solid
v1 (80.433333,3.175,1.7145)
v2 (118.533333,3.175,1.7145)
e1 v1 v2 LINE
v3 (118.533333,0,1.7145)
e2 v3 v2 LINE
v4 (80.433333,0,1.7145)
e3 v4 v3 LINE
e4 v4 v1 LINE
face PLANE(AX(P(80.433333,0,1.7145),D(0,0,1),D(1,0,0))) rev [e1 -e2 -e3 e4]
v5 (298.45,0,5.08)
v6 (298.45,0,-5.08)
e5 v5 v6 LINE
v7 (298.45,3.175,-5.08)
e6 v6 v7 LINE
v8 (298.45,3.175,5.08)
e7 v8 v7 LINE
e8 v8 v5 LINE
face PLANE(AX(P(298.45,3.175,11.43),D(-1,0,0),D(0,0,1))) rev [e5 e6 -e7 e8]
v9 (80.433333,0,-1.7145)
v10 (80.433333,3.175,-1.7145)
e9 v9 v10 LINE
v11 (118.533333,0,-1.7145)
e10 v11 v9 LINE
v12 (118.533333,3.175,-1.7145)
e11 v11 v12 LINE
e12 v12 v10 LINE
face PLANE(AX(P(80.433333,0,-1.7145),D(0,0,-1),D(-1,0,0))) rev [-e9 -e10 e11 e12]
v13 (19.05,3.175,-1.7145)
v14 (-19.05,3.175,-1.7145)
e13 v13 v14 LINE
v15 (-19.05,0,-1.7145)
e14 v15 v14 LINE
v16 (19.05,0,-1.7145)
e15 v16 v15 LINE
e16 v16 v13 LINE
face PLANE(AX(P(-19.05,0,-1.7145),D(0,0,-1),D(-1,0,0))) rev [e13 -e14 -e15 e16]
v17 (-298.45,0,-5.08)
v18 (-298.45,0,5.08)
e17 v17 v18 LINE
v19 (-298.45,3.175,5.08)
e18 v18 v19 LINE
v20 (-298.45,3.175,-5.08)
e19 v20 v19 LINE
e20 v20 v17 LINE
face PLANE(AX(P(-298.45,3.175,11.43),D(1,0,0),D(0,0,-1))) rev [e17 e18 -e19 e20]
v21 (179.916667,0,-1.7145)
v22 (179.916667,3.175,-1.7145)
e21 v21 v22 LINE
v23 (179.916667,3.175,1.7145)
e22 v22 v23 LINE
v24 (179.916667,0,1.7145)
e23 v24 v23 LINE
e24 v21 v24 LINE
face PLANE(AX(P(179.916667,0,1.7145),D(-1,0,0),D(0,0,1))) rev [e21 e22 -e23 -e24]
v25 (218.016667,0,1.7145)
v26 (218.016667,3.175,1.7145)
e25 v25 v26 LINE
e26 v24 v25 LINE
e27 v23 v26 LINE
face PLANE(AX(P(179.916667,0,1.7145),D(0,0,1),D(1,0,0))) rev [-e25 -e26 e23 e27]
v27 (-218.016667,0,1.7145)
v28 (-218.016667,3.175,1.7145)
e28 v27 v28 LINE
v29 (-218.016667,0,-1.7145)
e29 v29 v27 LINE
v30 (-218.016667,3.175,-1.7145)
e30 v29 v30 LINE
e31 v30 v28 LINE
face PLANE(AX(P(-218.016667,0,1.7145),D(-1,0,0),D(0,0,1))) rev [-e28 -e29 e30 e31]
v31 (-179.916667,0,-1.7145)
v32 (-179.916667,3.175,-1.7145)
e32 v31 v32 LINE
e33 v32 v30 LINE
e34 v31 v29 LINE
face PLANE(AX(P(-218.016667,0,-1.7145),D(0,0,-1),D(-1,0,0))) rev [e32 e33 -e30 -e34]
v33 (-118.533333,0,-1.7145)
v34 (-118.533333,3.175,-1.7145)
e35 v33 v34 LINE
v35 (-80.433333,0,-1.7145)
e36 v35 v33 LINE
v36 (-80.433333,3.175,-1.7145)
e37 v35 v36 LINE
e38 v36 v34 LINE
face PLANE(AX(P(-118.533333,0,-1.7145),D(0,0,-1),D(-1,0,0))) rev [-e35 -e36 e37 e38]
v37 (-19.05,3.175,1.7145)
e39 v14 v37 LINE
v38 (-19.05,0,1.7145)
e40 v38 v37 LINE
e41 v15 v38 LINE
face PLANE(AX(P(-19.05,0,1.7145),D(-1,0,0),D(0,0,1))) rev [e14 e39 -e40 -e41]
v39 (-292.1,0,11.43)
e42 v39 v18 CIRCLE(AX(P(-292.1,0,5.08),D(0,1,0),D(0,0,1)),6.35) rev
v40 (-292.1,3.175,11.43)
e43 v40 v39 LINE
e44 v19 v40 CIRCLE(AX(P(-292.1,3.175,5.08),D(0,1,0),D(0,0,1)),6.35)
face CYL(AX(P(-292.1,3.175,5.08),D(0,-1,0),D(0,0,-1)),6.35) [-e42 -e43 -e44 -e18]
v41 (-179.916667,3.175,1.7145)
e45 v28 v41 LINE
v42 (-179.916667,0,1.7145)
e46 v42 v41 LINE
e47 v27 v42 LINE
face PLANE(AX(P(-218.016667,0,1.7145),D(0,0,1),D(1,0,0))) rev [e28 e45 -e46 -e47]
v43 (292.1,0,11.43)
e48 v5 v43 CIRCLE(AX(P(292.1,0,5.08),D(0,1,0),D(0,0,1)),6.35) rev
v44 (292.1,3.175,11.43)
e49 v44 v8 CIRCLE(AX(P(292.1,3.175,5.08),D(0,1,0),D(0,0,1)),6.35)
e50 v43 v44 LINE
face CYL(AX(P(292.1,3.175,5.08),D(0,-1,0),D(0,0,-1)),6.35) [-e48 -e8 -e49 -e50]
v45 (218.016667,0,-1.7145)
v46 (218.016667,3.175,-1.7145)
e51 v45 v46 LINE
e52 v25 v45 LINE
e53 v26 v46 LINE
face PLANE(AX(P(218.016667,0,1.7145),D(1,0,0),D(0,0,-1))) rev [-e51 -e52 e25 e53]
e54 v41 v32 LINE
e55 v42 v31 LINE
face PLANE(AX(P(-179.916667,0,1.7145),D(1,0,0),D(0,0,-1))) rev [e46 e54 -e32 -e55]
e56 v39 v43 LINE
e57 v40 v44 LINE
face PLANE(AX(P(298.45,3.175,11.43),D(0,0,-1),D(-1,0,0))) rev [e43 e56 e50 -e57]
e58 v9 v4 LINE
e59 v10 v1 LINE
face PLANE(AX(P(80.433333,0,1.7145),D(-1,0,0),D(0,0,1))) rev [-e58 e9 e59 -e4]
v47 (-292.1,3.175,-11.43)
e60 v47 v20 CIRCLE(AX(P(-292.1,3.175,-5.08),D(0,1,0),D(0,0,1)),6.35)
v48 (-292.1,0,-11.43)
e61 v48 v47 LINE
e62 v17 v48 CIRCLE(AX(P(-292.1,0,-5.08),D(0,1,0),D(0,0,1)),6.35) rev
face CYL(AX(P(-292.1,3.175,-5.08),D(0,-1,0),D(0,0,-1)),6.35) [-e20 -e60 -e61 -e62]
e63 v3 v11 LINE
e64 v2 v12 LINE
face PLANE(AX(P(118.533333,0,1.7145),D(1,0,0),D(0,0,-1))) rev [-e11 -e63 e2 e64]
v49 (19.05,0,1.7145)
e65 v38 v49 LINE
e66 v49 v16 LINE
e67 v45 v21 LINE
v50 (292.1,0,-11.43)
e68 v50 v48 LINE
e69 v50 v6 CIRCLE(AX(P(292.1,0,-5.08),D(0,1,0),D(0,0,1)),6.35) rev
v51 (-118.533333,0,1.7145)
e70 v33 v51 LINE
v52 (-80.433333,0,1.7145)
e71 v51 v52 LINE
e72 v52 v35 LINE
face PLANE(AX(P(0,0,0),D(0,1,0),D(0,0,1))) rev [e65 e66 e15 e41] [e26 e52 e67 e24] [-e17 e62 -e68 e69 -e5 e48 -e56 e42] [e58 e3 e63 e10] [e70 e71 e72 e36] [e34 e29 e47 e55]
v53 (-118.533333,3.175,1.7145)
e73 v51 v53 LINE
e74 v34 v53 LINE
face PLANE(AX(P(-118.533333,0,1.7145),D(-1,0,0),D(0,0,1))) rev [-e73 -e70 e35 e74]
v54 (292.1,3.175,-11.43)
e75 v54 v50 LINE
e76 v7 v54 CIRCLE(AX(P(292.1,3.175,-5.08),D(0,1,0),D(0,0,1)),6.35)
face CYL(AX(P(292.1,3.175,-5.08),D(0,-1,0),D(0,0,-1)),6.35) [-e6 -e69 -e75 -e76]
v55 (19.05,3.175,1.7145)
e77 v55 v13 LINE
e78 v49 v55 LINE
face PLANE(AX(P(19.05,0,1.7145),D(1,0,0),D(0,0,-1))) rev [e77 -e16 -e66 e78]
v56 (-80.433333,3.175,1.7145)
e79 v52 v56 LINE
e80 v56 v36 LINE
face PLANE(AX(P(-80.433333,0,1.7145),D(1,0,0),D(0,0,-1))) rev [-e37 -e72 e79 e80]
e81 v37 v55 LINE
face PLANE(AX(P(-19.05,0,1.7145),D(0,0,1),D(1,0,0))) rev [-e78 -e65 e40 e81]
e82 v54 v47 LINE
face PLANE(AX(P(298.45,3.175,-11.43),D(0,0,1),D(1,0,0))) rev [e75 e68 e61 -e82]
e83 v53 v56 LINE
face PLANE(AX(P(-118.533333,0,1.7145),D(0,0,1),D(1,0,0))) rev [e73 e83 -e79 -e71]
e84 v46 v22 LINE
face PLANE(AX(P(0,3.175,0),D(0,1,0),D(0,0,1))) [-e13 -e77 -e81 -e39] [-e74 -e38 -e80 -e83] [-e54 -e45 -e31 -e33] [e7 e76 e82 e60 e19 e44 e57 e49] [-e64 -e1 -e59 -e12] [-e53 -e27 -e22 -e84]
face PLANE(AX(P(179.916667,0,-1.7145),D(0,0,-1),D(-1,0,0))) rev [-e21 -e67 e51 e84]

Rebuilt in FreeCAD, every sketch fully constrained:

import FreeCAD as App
import Part
import Sketcher
from FreeCAD import Vector
Q = App.Units.Quantity


def edges_at(feature, points):
    """Names of the edges that pass closest to the given points."""
    edges = feature.Shape.Edges
    near = lambda p: min(range(len(edges)), key=lambda i: edges[i].distToShape(Part.Vertex(*p))[0])
    return sorted({f"Edge{near(p) + 1}" for p in points})

doc = App.newDocument("Part")
body = doc.addObject("PartDesign::Body", "Body")

# Sketch on XZ plane
sketch1 = body.newObject("Sketcher::SketchObject", "Sketch")
sketch1.AttachmentSupport = (doc.getObject("XZ_Plane"), [""])
sketch1.MapMode = "FlatFace"
sketch1.addGeometry([
    Part.LineSegment(Vector(-298, -11, 0), Vector(-298, 11, 0)),
    Part.LineSegment(Vector(-298, 11, 0), Vector(298, 11, 0)),
    Part.LineSegment(Vector(298, 11, 0), Vector(298, -11, 0)),
    Part.LineSegment(Vector(298, -11, 0), Vector(-298, -11, 0)),
], False)
sketch1.addConstraint([
    Sketcher.Constraint("Coincident", 0, 2, 1, 1),
    Sketcher.Constraint("Coincident", 1, 2, 2, 1),
    Sketcher.Constraint("Coincident", 2, 2, 3, 1),
    Sketcher.Constraint("Coincident", 3, 2, 0, 1),
    Sketcher.Constraint("Vertical", 0),
    Sketcher.Constraint("Horizontal", 1),
    Sketcher.Constraint("Vertical", 2),
    Sketcher.Constraint("Horizontal", 3),
    Sketcher.Constraint("Symmetric", 0, 2, 2, 2, -1, 1),
    Sketcher.Constraint("DistanceX", 1, 1, 1, 2, Q("23.5 in")),
    Sketcher.Constraint("DistanceY", 0, 1, 0, 2, Q("0.9 in")),
])
pad1 = body.newObject("PartDesign::Pad", "Pad")
pad1.Profile = sketch1
pad1.Length = Q("0.125 in")
pad1.Reversed = True

# Sketch on XZ plane
sketch2 = body.newObject("Sketcher::SketchObject", "Sketch001")
sketch2.AttachmentSupport = (doc.getObject("XZ_Plane"), [""])
sketch2.MapMode = "FlatFace"
sketch2.AttachmentOffset = App.Placement(Vector(0, 0, -0.125 * 25.4), App.Rotation())
sketch2.addGeometry([
    Part.LineSegment(Vector(-218, -1.7, 0), Vector(-218, 1.7, 0)),  # 0
    Part.LineSegment(Vector(-218, 1.7, 0), Vector(-179.9, 1.7, 0)),  # 1
    Part.LineSegment(Vector(-179.9, 1.7, 0), Vector(-179.9, -1.7, 0)),  # 2
    Part.LineSegment(Vector(-179.9, -1.7, 0), Vector(-218, -1.7, 0)),  # 3
    Part.LineSegment(Vector(-118.5, -1.7, 0), Vector(-118.5, 1.7, 0)),  # 4
    Part.LineSegment(Vector(-118.5, 1.7, 0), Vector(-80.4, 1.7, 0)),  # 5
    Part.LineSegment(Vector(-80.4, 1.7, 0), Vector(-80.4, -1.7, 0)),  # 6
    Part.LineSegment(Vector(-80.4, -1.7, 0), Vector(-118.5, -1.7, 0)),  # 7
    Part.LineSegment(Vector(-19.1, -1.7, 0), Vector(-19.1, 1.7, 0)),  # 8
    Part.LineSegment(Vector(-19.1, 1.7, 0), Vector(19.1, 1.7, 0)),  # 9
    Part.LineSegment(Vector(19.1, 1.7, 0), Vector(19.1, -1.7, 0)),  # 10
    Part.LineSegment(Vector(19.1, -1.7, 0), Vector(-19.1, -1.7, 0)),  # 11
    Part.LineSegment(Vector(80.4, -1.7, 0), Vector(80.4, 1.7, 0)),  # 12
    Part.LineSegment(Vector(80.4, 1.7, 0), Vector(118.5, 1.7, 0)),  # 13
    Part.LineSegment(Vector(118.5, 1.7, 0), Vector(118.5, -1.7, 0)),  # 14
    Part.LineSegment(Vector(118.5, -1.7, 0), Vector(80.4, -1.7, 0)),  # 15
    Part.LineSegment(Vector(179.9, -1.7, 0), Vector(179.9, 1.7, 0)),  # 16
    Part.LineSegment(Vector(179.9, 1.7, 0), Vector(218, 1.7, 0)),  # 17
    Part.LineSegment(Vector(218, 1.7, 0), Vector(218, -1.7, 0)),  # 18
    Part.LineSegment(Vector(218, -1.7, 0), Vector(179.9, -1.7, 0)),  # 19
], False)
sketch2.addConstraint([
    Sketcher.Constraint("Coincident", 0, 2, 1, 1),
    Sketcher.Constraint("Coincident", 1, 2, 2, 1),
    Sketcher.Constraint("Coincident", 2, 2, 3, 1),
    Sketcher.Constraint("Coincident", 3, 2, 0, 1),
    Sketcher.Constraint("Coincident", 4, 2, 5, 1),
    Sketcher.Constraint("Coincident", 5, 2, 6, 1),
    Sketcher.Constraint("Coincident", 6, 2, 7, 1),
    Sketcher.Constraint("Coincident", 7, 2, 4, 1),
    Sketcher.Constraint("Coincident", 8, 2, 9, 1),
    Sketcher.Constraint("Coincident", 9, 2, 10, 1),
    Sketcher.Constraint("Coincident", 10, 2, 11, 1),
    Sketcher.Constraint("Coincident", 11, 2, 8, 1),
    Sketcher.Constraint("Coincident", 12, 2, 13, 1),
    Sketcher.Constraint("Coincident", 13, 2, 14, 1),
    Sketcher.Constraint("Coincident", 14, 2, 15, 1),
    Sketcher.Constraint("Coincident", 15, 2, 12, 1),
    Sketcher.Constraint("Coincident", 16, 2, 17, 1),
    Sketcher.Constraint("Coincident", 17, 2, 18, 1),
    Sketcher.Constraint("Coincident", 18, 2, 19, 1),
    Sketcher.Constraint("Coincident", 19, 2, 16, 1),
    Sketcher.Constraint("Vertical", 0),
    Sketcher.Constraint("Horizontal", 1),
    Sketcher.Constraint("Vertical", 2),
    Sketcher.Constraint("Horizontal", 3),
    Sketcher.Constraint("Vertical", 4),
    Sketcher.Constraint("Horizontal", 5),
    Sketcher.Constraint("Vertical", 6),
    Sketcher.Constraint("Horizontal", 7),
    Sketcher.Constraint("Vertical", 8),
    Sketcher.Constraint("Horizontal", 9),
    Sketcher.Constraint("Vertical", 10),
    Sketcher.Constraint("Horizontal", 11),
    Sketcher.Constraint("Vertical", 12),
    Sketcher.Constraint("Horizontal", 13),
    Sketcher.Constraint("Vertical", 14),
    Sketcher.Constraint("Horizontal", 15),
    Sketcher.Constraint("Vertical", 16),
    Sketcher.Constraint("Horizontal", 17),
    Sketcher.Constraint("Vertical", 18),
    Sketcher.Constraint("Horizontal", 19),
    Sketcher.Constraint("Symmetric", 8, 2, 10, 2, -1, 1),
    Sketcher.Constraint("Symmetric", 6, 2, 12, 2, -1, 1),
    Sketcher.Constraint("Symmetric", 4, 2, 14, 2, -1, 1),
    Sketcher.Constraint("Symmetric", 2, 2, 16, 2, -1, 1),
    Sketcher.Constraint("Symmetric", 0, 2, 18, 2, -1, 1),
    Sketcher.Constraint("Horizontal", 1, 2, 4, 2),
    Sketcher.Constraint("Horizontal", 3, 2, 6, 2),
    Sketcher.Constraint("Horizontal", 5, 2, 8, 2),
    Sketcher.Constraint("Horizontal", 7, 2, 10, 2),
    Sketcher.Constraint("Equal", 3, 5),
    Sketcher.Constraint("Equal", 7, 9),
    Sketcher.Constraint("DistanceX", 1, 1, 1, 2, Q("1.5 in")),
    Sketcher.Constraint("DistanceY", 0, 1, 0, 2, Q("0.135 in")),
    Sketcher.Constraint("DistanceX", 0, 2, -1, 1, Q("218.016667 mm")),
    Sketcher.Constraint("DistanceX", 4, 2, -1, 1, Q("118.533333 mm")),
])
pocket1 = body.newObject("PartDesign::Pocket", "Pocket")
pocket1.Profile = sketch2
pocket1.Type = "ThroughAll"
pocket1.Reversed = True
doc.recompute()

fillet = body.newObject("PartDesign::Fillet", "Fillet")
fillet.Base = (pocket1, edges_at(pocket1, [
    (-298.45, 1.587, -11.43),
    (298.45, 1.587, -11.43),
    (298.45, 1.587, 11.43),
    (-298.45, 1.587, 11.43),
]))
fillet.Radius = Q("0.25 in")

doc.recompute()
